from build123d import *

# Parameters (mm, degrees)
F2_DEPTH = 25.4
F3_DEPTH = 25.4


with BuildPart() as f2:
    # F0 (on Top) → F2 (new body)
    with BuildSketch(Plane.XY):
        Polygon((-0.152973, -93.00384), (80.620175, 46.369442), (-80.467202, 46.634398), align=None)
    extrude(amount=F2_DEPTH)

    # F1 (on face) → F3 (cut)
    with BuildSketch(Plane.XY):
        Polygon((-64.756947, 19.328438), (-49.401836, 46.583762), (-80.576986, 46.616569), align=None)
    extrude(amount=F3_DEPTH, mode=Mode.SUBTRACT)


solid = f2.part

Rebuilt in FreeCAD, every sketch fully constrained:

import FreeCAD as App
import Part
import Sketcher
from FreeCAD import Vector
Q = App.Units.Quantity


def add_polygon(sketch, points):
    """Adds a closed chain of lines whose ends are joined by coincident constraints."""
    first, n = sketch.GeometryCount, len(points)
    for a, b in zip(points, points[1:] + points[:1]):
        sketch.addGeometry(Part.LineSegment(App.Vector(*a, 0), App.Vector(*b, 0)), False)
    for i in range(n):
        sketch.addConstraint(Sketcher.Constraint("Coincident", first + i, 2, first + (i + 1) % n, 1))

doc = App.newDocument("Part")
body = doc.addObject("PartDesign::Body", "Body")
body.AllowCompound = True

sketch1 = doc.addObject("Sketcher::SketchObject", "Sketch")
body.addObject(sketch1)
sketch1.AttachmentSupport = (doc.XY_Plane, [""])
sketch1.MapMode = "FlatFace"
add_polygon(sketch1, [(0, -93), (81, 46), (-80, 47)])
sketch1.addConstraint([
    Sketcher.Constraint("Equal", 0, 1),
    Sketcher.Constraint("Equal", 1, 2),
    Sketcher.Constraint("DistanceX", 1, 2, -1, 1, Q("3.1680001 in")),
    Sketcher.Constraint("DistanceY", -1, 1, 1, 2, Q("1.8359999 in")),
    Sketcher.Constraint("DistanceY", 2, 2, -1, 1, Q("93.00384 mm")),
    Sketcher.Constraint("DistanceX", 1, 2, 2, 2, Q("80.314229 mm")),
])
pad1 = doc.addObject("PartDesign::Pad", "Pad")
body.addObject(pad1)
pad1.Profile = sketch1
pad1.Length = Q("1 in")

sketch2 = doc.addObject("Sketcher::SketchObject", "Sketch001")
body.addObject(sketch2)
sketch2.AttachmentSupport = (doc.XY_Plane, [""])
sketch2.MapMode = "FlatFace"
add_polygon(sketch2, [(-65, 19), (-49, 47), (-81, 47)])
sketch2.addConstraint([
    Sketcher.Constraint("DistanceY", -1, 1, 1, 2, Q("46.616569 mm")),
    Sketcher.Constraint("DistanceX", 1, 2, 0, 2, Q("31.17515 mm")),
    Sketcher.Constraint("DistanceX", 2, 2, 0, 2, Q("15.355111 mm")),
    Sketcher.Constraint("DistanceY", 2, 2, 1, 2, Q("27.288131 mm")),
    Sketcher.Constraint("Distance", 0, Q("31.283096 mm")),
    Sketcher.Constraint("DistanceX", 0, 2, -1, 1, Q("49.401836 mm")),
])
pocket1 = doc.addObject("PartDesign::Pocket", "Pocket")
body.addObject(pocket1)
pocket1.Profile = sketch2
pocket1.Length = Q("1 in")
pocket1.Reversed = True

doc.recompute()
